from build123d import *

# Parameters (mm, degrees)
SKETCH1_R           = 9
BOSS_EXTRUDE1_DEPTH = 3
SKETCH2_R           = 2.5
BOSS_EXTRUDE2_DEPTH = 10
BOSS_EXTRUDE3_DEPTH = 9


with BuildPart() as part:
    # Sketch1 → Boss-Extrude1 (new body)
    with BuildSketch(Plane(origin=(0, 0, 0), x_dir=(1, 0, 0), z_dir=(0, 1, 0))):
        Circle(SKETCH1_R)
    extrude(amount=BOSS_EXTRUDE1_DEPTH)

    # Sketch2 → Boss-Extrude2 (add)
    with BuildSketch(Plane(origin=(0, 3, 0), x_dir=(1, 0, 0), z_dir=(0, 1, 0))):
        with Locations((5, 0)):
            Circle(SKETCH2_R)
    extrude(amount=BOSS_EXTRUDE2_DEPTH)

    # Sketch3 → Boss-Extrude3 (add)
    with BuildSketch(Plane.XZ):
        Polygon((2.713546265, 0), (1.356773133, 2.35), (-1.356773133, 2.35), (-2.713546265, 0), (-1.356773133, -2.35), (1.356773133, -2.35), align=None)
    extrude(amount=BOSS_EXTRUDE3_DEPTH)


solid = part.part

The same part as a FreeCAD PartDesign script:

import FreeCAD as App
import Part
import Sketcher
from FreeCAD import Vector
Q = App.Units.Quantity

doc = App.newDocument("Part")
body = doc.addObject("PartDesign::Body", "Body")

# Sketch on XZ plane
sketch1 = body.newObject("Sketcher::SketchObject", "Sketch")
sketch1.AttachmentSupport = (doc.getObject("XZ_Plane"), [""])
sketch1.MapMode = "FlatFace"
sketch1.addGeometry(Part.Circle(Vector(0, 0, 0), Vector(0, 0, 1), 9), False)
sketch1.addConstraint([
    Sketcher.Constraint("Coincident", 0, 3, -1, 1),
    Sketcher.Constraint("Diameter", 0, Q("18 mm")),
])
pad1 = body.newObject("PartDesign::Pad", "Pad")
pad1.Profile = sketch1
pad1.Length = 3
pad1.Reversed = True

# Sketch on XZ plane
sketch2 = body.newObject("Sketcher::SketchObject", "Sketch001")
sketch2.AttachmentSupport = (doc.getObject("XZ_Plane"), [""])
sketch2.MapMode = "FlatFace"
sketch2.AttachmentOffset = App.Placement(Vector(0, 0, -3), App.Rotation())
sketch2.addGeometry(Part.Circle(Vector(5, 0, 0), Vector(0, 0, 1), 2.5), False)
sketch2.addConstraint([
    Sketcher.Constraint("PointOnObject", 0, 3, -1),
    Sketcher.Constraint("Diameter", 0, Q("5 mm")),
    Sketcher.Constraint("DistanceX", -1, 1, 0, 3, Q("5 mm")),
])
pad2 = body.newObject("PartDesign::Pad", "Pad001")
pad2.Profile = sketch2
pad2.Length = 10
pad2.Reversed = True

# Sketch on XZ plane
sketch3 = body.newObject("Sketcher::SketchObject", "Sketch002")
sketch3.AttachmentSupport = (doc.getObject("XZ_Plane"), [""])
sketch3.MapMode = "FlatFace"
sketch3.addGeometry([
    Part.LineSegment(Vector(2.7, 0, 0), Vector(1.4, 2.4, 0)),  # 0
    Part.LineSegment(Vector(1.4, 2.4, 0), Vector(-1.4, 2.4, 0)),  # 1
    Part.LineSegment(Vector(-1.4, 2.4, 0), Vector(-2.7, 0, 0)),  # 2
    Part.LineSegment(Vector(-2.7, 0, 0), Vector(-1.4, -2.4, 0)),  # 3
    Part.LineSegment(Vector(-1.4, -2.4, 0), Vector(1.4, -2.4, 0)),  # 4
    Part.LineSegment(Vector(1.4, -2.4, 0), Vector(2.7, 0, 0)),  # 5
], False)
sketch3.addConstraint([
    Sketcher.Constraint("Coincident", 0, 2, 1, 1),
    Sketcher.Constraint("Coincident", 1, 2, 2, 1),
    Sketcher.Constraint("Coincident", 2, 2, 3, 1),
    Sketcher.Constraint("Coincident", 3, 2, 4, 1),
    Sketcher.Constraint("Coincident", 4, 2, 5, 1),
    Sketcher.Constraint("Coincident", 5, 2, 0, 1),
    Sketcher.Constraint("Horizontal", 1),
    Sketcher.Constraint("Horizontal", 4),
    Sketcher.Constraint("Symmetric", 0, 2, 3, 2, -1, 1),
    Sketcher.Constraint("Symmetric", 2, 2, 5, 2, -1, 1),
    Sketcher.Constraint("PointOnObject", 2, 2, -1),
    Sketcher.Constraint("Parallel", 2, 5),
    Sketcher.Constraint("Vertical", 1, 2, 3, 2),
    Sketcher.Constraint("Angle", 0, Q("120 deg")),
    Sketcher.Constraint("DistanceY", 3, 2, 1, 2, Q("4.7 mm")),
    Sketcher.Constraint("DistanceX", 1, 2, 1, 1, Q("2.713546 mm")),
])
pad3 = body.newObject("PartDesign::Pad", "Pad002")
pad3.Profile = sketch3
pad3.Length = 9

doc.recompute()
